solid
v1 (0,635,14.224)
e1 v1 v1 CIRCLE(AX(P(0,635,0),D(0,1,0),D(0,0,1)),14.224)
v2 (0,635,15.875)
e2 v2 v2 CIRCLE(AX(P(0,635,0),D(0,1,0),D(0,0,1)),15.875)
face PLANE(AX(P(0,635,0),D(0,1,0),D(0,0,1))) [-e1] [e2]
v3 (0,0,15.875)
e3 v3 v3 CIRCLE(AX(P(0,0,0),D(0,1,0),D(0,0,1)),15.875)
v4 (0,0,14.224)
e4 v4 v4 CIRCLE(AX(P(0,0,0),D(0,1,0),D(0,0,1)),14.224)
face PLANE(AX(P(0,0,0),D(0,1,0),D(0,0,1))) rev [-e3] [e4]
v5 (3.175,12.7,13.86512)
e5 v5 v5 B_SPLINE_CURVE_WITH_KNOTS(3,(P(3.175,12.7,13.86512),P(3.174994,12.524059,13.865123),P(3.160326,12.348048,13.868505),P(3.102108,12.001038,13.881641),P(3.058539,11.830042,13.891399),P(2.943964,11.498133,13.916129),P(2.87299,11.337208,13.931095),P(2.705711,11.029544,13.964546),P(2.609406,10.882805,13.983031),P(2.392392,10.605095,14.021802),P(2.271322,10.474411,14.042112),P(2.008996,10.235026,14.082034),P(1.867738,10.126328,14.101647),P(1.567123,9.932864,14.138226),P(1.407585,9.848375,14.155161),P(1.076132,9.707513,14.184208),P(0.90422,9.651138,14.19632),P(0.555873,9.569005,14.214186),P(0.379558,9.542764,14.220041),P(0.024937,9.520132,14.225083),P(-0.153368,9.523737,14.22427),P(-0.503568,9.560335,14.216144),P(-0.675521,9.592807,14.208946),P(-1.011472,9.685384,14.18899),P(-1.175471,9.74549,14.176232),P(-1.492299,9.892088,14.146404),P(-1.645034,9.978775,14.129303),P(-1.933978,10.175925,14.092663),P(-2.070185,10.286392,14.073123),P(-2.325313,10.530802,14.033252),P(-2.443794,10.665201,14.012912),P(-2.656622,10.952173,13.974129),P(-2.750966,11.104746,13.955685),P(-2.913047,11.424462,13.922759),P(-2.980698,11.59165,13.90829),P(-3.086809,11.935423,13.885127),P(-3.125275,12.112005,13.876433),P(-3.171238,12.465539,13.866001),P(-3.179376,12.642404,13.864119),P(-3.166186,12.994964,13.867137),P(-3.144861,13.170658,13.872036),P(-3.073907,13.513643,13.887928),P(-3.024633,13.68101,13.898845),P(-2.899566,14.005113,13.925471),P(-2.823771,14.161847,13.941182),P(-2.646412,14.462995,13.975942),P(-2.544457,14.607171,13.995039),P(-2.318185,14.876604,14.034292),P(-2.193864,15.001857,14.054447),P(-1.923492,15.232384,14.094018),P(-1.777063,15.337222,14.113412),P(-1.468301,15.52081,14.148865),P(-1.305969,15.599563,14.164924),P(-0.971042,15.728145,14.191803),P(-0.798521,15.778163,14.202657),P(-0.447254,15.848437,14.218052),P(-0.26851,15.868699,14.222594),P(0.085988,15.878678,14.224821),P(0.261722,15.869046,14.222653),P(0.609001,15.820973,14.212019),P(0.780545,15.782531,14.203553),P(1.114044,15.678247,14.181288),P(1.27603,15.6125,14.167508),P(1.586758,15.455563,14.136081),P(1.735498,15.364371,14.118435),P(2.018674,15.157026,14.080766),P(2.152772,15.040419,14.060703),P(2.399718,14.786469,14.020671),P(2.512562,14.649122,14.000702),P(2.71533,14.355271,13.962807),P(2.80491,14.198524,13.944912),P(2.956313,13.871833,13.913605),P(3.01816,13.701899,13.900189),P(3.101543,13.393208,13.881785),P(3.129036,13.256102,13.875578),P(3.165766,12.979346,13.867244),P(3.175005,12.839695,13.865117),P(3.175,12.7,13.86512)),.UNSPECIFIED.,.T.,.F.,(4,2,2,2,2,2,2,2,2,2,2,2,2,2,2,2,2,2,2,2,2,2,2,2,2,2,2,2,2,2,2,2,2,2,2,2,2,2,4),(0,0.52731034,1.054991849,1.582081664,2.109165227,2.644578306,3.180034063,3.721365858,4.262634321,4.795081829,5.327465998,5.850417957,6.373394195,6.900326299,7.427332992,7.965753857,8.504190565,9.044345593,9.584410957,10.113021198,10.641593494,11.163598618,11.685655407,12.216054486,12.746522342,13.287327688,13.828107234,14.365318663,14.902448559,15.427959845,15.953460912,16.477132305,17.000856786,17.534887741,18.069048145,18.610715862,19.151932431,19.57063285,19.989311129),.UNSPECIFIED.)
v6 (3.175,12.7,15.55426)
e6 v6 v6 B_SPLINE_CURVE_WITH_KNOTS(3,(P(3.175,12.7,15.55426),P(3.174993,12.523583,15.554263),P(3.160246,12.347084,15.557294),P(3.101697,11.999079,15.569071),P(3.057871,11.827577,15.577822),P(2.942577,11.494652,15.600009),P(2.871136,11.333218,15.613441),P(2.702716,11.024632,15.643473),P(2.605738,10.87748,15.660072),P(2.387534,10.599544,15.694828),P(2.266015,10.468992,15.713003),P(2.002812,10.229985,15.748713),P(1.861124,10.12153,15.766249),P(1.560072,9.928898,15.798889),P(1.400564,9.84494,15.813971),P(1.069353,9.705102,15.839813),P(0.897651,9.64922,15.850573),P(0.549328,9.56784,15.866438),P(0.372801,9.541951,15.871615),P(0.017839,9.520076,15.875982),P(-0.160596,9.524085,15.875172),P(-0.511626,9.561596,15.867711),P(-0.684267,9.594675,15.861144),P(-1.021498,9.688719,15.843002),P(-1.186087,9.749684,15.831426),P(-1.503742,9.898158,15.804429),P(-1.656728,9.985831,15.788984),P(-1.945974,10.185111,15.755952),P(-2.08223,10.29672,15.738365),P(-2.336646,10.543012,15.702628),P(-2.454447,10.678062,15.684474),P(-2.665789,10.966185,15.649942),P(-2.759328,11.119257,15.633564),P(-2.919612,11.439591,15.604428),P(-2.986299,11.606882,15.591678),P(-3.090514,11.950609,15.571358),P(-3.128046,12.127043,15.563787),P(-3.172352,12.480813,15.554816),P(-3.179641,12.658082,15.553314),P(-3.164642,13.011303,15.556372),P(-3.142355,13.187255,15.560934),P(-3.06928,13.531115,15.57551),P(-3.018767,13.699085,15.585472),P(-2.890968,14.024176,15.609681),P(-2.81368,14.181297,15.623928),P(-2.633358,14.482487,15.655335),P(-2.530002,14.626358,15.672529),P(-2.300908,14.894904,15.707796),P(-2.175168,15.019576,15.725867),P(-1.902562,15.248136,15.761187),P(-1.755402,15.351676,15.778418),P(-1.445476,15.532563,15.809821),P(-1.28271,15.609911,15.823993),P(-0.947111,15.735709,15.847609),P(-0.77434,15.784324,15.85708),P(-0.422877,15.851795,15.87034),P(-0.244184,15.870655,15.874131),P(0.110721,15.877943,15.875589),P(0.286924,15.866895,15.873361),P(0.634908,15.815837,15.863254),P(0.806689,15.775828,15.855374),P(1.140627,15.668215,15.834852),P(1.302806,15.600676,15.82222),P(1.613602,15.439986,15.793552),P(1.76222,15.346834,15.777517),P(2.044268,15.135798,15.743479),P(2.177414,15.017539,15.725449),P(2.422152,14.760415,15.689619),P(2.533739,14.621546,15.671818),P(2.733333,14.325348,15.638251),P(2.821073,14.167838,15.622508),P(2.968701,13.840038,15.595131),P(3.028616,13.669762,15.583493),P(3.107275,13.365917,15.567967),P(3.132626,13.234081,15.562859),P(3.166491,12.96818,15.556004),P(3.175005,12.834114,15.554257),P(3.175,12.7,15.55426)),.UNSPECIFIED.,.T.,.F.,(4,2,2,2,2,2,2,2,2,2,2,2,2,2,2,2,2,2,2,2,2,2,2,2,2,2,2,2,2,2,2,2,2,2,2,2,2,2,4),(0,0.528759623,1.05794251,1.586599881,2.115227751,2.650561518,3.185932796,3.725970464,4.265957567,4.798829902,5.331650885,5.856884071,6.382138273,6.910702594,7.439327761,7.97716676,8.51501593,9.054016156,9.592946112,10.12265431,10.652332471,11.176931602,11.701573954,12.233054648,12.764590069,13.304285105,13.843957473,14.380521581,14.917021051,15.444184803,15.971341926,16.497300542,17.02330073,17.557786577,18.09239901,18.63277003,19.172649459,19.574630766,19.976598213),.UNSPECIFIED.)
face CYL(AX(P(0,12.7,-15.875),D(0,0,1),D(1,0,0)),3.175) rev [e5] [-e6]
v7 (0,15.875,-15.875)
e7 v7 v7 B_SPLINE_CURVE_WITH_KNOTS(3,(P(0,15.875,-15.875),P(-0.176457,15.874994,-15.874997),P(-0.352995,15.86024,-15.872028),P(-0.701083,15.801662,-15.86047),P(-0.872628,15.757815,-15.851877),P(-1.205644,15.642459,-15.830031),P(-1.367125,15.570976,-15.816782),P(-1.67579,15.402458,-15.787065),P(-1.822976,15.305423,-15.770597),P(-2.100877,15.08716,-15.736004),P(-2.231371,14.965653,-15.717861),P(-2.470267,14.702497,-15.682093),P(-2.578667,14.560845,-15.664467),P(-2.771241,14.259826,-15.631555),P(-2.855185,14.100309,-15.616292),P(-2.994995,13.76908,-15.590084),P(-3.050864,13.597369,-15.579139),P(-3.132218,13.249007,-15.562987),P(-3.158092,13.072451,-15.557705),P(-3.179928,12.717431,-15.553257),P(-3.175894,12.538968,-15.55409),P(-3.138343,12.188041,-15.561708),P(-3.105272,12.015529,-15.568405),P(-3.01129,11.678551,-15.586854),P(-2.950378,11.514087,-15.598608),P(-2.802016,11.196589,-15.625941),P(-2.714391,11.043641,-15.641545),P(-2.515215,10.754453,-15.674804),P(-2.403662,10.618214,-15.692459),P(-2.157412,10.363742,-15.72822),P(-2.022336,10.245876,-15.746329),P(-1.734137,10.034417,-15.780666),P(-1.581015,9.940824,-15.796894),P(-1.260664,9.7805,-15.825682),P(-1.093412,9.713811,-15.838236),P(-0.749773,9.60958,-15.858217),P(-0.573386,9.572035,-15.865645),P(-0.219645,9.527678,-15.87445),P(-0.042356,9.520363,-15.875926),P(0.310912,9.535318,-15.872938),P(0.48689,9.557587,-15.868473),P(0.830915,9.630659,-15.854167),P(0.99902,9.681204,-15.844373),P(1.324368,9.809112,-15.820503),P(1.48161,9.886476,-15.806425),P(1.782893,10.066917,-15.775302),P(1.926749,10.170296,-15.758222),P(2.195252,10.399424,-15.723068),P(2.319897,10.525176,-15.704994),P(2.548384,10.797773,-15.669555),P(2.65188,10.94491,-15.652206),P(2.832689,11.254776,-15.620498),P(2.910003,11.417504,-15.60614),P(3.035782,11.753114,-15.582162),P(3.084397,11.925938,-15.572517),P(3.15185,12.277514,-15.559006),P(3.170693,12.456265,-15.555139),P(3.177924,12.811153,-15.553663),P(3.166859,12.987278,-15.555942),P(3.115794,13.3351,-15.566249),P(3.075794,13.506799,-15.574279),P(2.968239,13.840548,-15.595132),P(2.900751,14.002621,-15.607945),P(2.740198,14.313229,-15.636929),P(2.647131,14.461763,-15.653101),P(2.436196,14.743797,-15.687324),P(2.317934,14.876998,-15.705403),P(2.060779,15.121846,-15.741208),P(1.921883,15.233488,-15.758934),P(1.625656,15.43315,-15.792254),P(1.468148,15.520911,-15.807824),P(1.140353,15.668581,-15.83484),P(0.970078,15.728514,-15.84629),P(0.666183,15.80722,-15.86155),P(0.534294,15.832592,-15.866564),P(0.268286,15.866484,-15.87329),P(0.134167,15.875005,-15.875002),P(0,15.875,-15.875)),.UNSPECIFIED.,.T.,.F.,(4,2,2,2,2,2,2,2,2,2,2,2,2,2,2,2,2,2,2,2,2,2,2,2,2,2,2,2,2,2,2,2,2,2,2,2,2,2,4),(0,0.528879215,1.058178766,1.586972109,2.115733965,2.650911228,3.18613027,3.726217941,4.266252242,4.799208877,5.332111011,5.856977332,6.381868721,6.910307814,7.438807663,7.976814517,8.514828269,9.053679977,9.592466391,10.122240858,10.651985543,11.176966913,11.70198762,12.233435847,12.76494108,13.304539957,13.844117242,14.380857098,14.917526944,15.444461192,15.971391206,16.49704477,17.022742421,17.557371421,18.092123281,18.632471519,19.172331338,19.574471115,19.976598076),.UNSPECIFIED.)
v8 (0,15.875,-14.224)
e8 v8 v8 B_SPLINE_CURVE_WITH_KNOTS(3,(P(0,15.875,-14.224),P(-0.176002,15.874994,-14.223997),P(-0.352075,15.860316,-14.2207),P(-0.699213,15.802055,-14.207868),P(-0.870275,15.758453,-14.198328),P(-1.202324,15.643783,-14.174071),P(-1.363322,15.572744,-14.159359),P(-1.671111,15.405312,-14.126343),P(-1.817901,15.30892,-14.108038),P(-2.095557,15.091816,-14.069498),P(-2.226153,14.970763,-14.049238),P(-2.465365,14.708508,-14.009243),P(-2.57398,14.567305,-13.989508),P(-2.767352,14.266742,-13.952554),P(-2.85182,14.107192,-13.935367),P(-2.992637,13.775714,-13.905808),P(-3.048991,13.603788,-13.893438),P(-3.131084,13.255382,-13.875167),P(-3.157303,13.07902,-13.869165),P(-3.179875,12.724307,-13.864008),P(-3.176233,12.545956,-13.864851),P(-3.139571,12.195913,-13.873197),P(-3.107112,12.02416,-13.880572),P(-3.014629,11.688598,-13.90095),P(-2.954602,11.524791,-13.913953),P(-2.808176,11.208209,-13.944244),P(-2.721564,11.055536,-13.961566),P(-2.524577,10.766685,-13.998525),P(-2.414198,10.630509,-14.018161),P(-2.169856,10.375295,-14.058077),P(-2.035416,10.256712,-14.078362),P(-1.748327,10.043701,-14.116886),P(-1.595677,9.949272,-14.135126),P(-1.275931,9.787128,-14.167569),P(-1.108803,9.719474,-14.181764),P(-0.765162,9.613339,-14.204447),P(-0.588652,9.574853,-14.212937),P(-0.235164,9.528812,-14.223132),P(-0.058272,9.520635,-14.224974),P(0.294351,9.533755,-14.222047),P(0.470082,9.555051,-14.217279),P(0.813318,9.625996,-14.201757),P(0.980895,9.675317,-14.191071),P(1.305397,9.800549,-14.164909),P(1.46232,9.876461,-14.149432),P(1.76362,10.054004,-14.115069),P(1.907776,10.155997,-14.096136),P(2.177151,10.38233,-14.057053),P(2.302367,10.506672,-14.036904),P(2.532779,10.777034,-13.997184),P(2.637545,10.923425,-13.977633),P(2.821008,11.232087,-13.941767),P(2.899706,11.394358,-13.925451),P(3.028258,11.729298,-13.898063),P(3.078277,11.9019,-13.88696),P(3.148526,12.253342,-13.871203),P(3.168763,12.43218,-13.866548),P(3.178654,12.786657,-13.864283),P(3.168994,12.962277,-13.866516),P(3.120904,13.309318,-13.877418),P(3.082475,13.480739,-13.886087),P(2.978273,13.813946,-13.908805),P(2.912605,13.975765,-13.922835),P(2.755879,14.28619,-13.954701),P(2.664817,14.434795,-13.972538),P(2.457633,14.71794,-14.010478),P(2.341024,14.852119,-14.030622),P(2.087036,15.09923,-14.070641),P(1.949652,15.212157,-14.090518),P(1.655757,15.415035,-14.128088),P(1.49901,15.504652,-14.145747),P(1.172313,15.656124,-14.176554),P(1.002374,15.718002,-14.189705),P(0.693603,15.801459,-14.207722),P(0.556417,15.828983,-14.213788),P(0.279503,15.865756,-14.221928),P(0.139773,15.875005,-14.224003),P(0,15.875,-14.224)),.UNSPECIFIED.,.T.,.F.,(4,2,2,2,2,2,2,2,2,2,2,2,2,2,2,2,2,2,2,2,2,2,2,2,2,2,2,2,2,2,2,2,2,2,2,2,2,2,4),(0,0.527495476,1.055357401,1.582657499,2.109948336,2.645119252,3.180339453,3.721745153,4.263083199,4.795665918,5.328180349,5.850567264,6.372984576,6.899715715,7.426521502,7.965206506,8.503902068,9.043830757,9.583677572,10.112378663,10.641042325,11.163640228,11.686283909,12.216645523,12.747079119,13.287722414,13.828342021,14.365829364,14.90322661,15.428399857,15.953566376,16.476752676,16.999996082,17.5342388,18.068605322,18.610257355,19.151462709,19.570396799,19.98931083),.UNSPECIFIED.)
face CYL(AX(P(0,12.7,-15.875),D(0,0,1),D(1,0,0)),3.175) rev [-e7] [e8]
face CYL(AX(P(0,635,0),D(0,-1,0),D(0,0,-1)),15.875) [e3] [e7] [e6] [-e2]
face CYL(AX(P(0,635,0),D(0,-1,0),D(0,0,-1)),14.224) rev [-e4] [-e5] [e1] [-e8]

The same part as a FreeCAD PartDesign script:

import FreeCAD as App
import Part
import Sketcher
Q = App.Units.Quantity

doc = App.newDocument("Part")
params = doc.addObject("Spreadsheet::Sheet", "Params")
for row, (alias, value) in enumerate([
    ("sketch1_diameter", "1.25 in"),
    ("sketch1_diameter2", "1.12 in"),
    ("pad1_length", "25 in"),
    ("sketch2_diameter", "0.25 in"),
], start=1):
    params.set(f"A{row}", alias)
    params.set(f"B{row}", "=" + value)
    params.setAlias(f"B{row}", alias)

body = doc.addObject("PartDesign::Body", "Body")

sketch1 = body.newObject("Sketcher::SketchObject", "Sketch")
sketch1.AttachmentSupport = (doc.getObject("XZ_Plane"), [""])
sketch1.MapMode = "FlatFace"
sketch1.addGeometry(Part.Circle(App.Vector(0, 0, 0), App.Vector(0, 0, 1), 16), False)
sketch1.addGeometry(Part.Circle(App.Vector(0, 0, 0), App.Vector(0, 0, 1), 14), False)
sketch1.addConstraint(Sketcher.Constraint("Coincident", 0, 3, -1, 1))
sketch1.addConstraint(Sketcher.Constraint("Coincident", 1, 3, -1, 1))
sketch1.addConstraint(Sketcher.Constraint("Diameter", 0, Q("1.25 in")))
sketch1.addConstraint(Sketcher.Constraint("Diameter", 1, Q("1.12 in")))
sketch1.setExpression("Constraints[2]", "Params.sketch1_diameter")
sketch1.setExpression("Constraints[3]", "Params.sketch1_diameter2")
pad1 = body.newObject("PartDesign::Pad", "Pad")
pad1.Profile = sketch1
pad1.setExpression("Length", "Params.pad1_length")
pad1.Reversed = True

sketch2 = body.newObject("Sketcher::SketchObject", "Sketch001")
sketch2.AttachmentSupport = (doc.getObject("XY_Plane"), [""])
sketch2.MapMode = "FlatFace"
sketch2.addGeometry(Part.Circle(App.Vector(0, 12.7, 0), App.Vector(0, 0, 1), 3.2), False)
sketch2.addConstraint(Sketcher.Constraint("PointOnObject", 0, 3, -2))
sketch2.addConstraint(Sketcher.Constraint("Diameter", 0, Q("0.25 in")))
sketch2.addConstraint(Sketcher.Constraint("DistanceY", -1, 1, 0, 3, Q("0.5 in")))
sketch2.setExpression("Constraints[1]", "Params.sketch2_diameter")
pocket1 = body.newObject("PartDesign::Pocket", "Pocket")
pocket1.Profile = sketch2
pocket1.Type = "ThroughAll"
pocket1.Midplane = True

doc.recompute()
